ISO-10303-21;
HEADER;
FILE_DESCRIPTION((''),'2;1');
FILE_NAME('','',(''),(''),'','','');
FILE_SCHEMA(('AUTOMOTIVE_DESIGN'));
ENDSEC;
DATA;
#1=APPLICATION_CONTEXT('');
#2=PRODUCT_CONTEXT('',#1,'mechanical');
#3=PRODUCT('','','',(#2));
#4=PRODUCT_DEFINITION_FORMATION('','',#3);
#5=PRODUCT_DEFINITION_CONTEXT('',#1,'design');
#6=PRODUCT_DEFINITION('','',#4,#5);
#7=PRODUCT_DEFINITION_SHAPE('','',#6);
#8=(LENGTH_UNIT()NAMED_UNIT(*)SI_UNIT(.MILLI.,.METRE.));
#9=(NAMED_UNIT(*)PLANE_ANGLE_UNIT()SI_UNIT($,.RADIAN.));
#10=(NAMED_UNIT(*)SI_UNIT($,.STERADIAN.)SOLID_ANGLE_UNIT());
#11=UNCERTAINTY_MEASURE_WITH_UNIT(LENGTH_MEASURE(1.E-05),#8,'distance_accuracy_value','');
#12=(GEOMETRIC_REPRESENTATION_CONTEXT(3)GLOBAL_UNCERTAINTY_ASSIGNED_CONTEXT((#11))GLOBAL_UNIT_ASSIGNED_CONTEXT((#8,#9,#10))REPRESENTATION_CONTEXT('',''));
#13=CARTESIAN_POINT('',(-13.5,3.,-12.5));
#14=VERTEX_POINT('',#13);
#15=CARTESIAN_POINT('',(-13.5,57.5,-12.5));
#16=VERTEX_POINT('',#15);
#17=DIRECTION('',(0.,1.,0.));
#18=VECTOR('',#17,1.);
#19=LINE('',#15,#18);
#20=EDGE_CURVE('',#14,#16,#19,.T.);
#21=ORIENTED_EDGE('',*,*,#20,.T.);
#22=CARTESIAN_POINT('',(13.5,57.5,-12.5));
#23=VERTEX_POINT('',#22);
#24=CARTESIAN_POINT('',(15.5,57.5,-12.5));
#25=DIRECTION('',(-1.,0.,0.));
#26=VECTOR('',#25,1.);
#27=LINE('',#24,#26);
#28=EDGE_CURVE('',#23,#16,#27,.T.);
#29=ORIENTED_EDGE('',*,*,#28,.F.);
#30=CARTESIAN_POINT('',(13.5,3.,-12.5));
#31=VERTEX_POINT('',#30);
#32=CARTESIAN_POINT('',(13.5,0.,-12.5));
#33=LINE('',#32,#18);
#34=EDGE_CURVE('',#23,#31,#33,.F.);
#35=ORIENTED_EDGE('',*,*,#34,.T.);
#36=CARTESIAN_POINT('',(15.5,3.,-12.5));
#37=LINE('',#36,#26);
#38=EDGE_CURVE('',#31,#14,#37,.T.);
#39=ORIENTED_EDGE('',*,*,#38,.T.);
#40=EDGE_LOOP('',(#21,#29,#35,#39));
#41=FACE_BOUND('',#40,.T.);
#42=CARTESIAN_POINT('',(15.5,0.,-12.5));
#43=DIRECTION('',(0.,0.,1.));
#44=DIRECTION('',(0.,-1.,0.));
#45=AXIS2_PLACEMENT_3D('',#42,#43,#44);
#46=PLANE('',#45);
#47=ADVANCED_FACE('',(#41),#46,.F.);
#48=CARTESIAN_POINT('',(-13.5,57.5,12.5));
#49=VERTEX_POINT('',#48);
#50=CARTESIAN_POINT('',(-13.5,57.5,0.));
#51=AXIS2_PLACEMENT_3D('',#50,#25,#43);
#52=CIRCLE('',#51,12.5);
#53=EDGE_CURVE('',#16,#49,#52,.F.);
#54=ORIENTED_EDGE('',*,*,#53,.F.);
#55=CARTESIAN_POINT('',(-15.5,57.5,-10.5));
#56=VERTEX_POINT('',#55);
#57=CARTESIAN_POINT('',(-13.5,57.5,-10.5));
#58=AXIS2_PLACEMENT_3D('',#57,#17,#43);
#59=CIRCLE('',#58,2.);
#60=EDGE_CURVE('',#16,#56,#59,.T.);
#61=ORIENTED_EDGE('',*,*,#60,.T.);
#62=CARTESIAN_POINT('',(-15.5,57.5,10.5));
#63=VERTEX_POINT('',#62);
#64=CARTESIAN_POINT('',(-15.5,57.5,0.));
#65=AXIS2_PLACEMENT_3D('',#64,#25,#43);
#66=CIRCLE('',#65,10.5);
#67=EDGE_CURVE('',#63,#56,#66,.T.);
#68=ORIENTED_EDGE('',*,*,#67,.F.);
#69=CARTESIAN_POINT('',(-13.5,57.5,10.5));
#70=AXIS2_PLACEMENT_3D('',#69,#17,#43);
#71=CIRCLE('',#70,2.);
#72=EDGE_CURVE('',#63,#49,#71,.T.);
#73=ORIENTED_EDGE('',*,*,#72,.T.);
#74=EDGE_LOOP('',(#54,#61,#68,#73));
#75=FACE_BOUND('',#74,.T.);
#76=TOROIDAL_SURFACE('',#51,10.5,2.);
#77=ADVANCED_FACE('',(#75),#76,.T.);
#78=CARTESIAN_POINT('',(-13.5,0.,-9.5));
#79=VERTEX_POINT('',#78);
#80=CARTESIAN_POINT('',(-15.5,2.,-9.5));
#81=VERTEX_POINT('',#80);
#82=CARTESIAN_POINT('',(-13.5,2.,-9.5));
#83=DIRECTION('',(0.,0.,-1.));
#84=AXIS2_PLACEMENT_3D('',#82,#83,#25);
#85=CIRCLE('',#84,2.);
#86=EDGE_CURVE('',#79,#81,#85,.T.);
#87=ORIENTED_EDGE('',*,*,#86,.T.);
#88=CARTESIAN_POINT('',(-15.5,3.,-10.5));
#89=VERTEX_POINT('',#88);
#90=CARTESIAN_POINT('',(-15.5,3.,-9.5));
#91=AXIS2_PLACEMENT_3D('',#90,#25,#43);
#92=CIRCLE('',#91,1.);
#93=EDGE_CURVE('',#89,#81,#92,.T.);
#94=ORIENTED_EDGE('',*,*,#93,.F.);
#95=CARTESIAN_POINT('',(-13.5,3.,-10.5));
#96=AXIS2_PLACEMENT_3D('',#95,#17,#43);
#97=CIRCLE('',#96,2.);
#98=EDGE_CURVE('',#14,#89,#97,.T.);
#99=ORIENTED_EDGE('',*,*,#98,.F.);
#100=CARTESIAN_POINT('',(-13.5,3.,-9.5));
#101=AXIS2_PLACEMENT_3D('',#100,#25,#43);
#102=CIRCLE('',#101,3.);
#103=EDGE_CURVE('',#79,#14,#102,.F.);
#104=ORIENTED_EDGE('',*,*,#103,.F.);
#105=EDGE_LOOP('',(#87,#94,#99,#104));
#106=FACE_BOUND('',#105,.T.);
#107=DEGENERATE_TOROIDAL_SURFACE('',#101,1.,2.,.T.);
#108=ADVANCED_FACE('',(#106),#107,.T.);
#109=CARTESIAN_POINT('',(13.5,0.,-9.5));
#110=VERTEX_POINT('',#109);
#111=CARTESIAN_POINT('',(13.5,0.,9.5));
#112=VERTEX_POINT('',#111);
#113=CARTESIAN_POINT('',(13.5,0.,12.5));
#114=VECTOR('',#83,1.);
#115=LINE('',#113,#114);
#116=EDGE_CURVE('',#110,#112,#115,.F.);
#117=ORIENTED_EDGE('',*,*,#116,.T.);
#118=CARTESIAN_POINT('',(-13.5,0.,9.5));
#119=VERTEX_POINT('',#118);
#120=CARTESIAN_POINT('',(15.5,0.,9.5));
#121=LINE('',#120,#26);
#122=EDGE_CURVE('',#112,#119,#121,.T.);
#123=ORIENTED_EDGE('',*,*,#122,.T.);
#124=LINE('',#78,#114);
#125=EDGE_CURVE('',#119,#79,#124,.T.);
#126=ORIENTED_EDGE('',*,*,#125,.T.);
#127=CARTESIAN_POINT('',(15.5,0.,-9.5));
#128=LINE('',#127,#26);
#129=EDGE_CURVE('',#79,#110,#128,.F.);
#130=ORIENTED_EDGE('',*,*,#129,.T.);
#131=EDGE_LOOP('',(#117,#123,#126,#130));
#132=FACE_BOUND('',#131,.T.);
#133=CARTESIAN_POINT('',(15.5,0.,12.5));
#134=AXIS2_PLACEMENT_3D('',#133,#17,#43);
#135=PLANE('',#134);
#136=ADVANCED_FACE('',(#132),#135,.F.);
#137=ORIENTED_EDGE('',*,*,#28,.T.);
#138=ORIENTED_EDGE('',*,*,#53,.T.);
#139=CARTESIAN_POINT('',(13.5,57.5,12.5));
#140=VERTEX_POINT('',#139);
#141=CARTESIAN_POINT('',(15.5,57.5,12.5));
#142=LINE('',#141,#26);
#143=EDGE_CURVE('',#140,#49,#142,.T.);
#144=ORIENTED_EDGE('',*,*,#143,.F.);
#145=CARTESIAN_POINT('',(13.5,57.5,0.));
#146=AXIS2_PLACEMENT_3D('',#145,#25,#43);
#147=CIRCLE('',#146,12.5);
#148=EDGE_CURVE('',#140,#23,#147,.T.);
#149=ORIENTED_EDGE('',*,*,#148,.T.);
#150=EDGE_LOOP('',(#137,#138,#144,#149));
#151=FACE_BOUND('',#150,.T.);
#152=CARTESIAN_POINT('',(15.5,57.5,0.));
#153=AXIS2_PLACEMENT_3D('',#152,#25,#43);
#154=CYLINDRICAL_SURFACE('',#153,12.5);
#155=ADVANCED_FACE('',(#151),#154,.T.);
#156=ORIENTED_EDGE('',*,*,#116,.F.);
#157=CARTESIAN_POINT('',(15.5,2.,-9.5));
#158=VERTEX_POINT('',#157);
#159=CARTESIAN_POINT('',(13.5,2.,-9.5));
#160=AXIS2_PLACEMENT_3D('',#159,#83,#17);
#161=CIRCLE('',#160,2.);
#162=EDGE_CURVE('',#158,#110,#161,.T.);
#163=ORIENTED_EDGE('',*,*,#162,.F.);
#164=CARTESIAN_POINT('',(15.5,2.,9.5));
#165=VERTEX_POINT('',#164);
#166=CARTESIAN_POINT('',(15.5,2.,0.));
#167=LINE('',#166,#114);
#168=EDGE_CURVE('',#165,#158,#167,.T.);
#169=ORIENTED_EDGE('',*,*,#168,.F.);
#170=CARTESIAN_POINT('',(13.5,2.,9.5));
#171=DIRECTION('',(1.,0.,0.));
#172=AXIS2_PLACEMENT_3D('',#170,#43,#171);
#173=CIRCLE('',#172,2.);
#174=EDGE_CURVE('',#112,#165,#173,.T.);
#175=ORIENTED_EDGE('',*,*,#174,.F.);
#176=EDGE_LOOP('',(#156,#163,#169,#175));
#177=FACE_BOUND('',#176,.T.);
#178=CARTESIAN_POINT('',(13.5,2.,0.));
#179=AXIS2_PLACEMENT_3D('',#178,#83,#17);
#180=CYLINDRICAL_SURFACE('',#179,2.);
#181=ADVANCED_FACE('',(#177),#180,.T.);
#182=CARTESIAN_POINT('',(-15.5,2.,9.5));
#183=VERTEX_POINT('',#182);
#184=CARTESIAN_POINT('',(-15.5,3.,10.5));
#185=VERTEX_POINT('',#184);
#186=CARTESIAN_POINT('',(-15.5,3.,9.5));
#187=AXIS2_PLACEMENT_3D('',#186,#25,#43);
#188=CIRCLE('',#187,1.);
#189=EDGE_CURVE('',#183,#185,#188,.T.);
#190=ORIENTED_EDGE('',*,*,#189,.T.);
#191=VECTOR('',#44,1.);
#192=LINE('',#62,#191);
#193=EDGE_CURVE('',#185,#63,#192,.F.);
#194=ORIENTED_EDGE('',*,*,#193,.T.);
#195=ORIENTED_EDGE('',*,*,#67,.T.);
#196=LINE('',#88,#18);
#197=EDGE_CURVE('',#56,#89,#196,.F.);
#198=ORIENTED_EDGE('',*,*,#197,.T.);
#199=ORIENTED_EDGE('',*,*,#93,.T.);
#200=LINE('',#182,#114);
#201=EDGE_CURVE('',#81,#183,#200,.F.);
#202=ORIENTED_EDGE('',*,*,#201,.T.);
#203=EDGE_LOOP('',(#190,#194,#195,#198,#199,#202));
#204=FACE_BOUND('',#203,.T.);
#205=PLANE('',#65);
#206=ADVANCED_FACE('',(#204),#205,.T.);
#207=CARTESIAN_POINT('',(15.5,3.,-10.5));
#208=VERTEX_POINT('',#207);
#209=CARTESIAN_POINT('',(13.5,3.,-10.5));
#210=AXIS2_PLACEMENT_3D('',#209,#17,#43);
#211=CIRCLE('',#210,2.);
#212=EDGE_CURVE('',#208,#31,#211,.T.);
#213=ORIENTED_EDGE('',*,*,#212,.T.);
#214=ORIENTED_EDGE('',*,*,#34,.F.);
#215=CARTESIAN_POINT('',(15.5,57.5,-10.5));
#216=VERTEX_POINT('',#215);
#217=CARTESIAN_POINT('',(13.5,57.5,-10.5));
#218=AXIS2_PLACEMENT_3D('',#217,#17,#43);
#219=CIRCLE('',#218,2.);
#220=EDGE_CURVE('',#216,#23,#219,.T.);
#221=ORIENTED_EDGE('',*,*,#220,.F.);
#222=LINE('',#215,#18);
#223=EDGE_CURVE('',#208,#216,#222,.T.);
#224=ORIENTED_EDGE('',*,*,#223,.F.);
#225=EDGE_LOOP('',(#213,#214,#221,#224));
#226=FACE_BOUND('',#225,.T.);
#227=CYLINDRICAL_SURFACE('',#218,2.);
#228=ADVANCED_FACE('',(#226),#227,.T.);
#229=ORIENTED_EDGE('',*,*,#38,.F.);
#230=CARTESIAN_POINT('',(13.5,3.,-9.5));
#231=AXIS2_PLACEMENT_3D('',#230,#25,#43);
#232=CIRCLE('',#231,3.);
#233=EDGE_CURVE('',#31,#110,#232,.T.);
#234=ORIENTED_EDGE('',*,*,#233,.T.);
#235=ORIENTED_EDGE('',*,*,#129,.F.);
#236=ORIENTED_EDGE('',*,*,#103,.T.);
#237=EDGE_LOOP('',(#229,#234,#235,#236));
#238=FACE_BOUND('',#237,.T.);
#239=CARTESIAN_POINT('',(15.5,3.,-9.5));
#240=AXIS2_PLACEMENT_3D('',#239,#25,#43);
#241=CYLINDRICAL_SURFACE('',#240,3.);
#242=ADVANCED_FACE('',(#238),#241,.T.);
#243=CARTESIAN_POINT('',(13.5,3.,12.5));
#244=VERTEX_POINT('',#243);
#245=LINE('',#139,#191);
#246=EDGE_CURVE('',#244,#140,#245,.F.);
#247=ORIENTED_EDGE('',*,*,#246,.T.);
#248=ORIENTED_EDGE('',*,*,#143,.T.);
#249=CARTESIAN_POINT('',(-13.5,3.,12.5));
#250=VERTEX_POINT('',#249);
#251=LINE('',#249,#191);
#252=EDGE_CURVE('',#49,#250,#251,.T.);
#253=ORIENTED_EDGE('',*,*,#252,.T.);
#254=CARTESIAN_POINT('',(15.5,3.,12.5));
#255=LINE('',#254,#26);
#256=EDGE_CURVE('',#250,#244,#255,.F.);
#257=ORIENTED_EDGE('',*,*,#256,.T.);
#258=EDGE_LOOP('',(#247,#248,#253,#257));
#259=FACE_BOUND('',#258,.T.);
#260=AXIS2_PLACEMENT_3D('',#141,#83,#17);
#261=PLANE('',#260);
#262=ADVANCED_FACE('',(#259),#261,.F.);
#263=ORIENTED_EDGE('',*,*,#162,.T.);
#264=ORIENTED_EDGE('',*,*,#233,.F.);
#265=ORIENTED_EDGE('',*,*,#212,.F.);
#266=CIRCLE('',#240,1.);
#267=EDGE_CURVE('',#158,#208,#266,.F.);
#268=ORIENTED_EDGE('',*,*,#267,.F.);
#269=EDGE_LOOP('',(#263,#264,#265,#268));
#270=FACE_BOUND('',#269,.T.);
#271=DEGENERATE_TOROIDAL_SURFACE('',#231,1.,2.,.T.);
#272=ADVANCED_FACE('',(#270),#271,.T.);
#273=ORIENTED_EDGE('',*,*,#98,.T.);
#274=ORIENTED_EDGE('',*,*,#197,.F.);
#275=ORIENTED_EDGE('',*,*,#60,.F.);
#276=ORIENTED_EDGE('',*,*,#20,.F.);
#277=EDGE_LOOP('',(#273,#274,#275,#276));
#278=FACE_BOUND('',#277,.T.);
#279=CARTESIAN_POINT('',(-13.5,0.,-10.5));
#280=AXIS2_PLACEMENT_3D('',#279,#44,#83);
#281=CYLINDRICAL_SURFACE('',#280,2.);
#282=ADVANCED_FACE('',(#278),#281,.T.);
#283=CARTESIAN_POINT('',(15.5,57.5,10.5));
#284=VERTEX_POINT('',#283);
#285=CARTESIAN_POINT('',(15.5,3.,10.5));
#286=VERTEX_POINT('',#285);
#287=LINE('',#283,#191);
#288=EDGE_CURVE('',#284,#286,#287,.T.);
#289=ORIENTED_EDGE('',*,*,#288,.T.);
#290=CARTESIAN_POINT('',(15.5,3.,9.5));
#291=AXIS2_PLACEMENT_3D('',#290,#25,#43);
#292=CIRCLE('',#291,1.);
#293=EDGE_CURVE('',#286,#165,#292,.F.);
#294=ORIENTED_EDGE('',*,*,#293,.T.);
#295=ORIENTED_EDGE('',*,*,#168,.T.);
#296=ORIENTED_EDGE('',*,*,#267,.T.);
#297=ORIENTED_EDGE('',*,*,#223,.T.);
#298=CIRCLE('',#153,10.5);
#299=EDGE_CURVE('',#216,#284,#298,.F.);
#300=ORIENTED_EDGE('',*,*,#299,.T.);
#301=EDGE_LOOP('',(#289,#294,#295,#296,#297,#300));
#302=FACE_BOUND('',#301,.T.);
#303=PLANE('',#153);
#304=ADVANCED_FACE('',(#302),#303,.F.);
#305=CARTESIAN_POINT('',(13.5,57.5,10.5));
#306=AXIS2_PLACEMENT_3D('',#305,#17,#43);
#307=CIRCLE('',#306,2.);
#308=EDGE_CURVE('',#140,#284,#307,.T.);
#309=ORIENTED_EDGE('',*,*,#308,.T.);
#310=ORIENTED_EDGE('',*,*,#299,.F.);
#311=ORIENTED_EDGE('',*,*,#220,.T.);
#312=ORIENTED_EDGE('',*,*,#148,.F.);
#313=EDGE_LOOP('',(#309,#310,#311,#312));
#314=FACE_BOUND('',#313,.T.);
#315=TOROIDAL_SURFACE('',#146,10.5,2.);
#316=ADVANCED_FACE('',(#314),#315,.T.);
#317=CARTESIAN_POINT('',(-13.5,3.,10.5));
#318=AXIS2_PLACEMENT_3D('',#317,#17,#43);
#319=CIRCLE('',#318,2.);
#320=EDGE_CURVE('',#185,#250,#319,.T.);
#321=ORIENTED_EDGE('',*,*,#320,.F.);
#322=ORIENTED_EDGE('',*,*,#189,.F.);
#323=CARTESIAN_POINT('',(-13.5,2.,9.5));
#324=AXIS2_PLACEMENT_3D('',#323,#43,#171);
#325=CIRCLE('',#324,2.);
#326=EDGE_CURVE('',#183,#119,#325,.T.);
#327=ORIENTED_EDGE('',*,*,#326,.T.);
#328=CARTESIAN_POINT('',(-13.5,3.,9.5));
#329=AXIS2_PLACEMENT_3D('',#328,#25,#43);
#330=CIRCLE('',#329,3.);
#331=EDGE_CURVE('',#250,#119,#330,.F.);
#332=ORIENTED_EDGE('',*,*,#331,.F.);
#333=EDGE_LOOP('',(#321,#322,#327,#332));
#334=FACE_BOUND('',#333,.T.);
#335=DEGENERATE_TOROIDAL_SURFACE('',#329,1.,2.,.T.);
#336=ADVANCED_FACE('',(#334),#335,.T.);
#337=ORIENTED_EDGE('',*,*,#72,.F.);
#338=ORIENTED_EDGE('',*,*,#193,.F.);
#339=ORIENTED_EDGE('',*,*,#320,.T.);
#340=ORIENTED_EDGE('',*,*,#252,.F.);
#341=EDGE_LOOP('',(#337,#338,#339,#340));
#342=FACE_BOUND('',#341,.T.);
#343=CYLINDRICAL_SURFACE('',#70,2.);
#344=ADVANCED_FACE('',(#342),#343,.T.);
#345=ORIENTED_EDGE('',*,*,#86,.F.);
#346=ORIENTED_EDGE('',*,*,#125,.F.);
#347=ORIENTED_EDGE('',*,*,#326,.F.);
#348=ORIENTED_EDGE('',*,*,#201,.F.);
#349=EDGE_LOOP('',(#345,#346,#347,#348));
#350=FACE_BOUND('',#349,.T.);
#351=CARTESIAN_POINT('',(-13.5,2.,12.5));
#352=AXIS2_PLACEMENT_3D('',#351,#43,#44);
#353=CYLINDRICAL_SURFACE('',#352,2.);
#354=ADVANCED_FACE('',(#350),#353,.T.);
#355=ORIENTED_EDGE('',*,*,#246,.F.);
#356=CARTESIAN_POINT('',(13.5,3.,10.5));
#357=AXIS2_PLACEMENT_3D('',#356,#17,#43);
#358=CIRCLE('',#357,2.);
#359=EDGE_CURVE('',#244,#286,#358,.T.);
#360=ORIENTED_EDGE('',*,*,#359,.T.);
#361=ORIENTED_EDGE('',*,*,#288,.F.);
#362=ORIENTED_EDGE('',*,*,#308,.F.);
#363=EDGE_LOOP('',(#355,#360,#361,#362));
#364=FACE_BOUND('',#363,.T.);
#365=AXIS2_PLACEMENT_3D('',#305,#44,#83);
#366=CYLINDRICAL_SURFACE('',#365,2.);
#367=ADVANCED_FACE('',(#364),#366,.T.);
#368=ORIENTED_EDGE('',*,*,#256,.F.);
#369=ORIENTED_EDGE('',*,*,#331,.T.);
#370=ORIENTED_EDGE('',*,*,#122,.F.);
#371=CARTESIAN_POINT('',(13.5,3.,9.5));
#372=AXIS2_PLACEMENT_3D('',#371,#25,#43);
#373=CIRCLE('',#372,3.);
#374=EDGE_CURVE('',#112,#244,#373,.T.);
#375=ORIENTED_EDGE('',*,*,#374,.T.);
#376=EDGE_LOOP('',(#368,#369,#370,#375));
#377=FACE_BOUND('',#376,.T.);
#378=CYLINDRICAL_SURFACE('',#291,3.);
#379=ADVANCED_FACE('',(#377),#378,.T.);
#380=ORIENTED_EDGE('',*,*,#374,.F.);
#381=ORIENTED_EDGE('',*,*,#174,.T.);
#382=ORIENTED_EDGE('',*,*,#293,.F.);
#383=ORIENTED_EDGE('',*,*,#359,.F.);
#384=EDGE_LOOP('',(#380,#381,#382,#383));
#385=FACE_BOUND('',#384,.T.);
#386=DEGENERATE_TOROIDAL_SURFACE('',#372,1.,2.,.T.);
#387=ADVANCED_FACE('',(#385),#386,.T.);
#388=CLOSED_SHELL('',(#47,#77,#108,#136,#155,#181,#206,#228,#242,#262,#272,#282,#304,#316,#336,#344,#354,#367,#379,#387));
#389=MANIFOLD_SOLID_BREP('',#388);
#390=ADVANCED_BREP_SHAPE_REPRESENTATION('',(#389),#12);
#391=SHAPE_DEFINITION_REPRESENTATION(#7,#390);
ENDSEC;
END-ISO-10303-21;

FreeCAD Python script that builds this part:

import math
import FreeCAD as App
import Part
import Sketcher
from FreeCAD import Vector
Q = App.Units.Quantity


def edges_at(feature, points):
    """Names of the edges that pass closest to the given points."""
    edges = feature.Shape.Edges
    near = lambda p: min(range(len(edges)), key=lambda i: edges[i].distToShape(Part.Vertex(*p))[0])
    return sorted({f"Edge{near(p) + 1}" for p in points})

doc = App.newDocument("Part")
params = doc.addObject("Spreadsheet::Sheet", "Params")
for row, (alias, value) in enumerate([
    ("sketch1_radius", "12.5 mm"),
    ("sketch1_width", "57.5 mm"),
    ("pad1_length", "31 mm"),
    ("fillet_radius", "3 mm"),
    ("fillet2_radius", "2 mm"),
], start=1):
    params.set(f"A{row}", alias)
    params.set(f"B{row}", "=" + value)
    params.setAlias(f"B{row}", alias)

body = doc.addObject("PartDesign::Body", "Body")

# Sketch on YZ plane
sketch1 = doc.addObject("Sketcher::SketchObject", "Sketch")
body.addObject(sketch1)
sketch1.AttachmentSupport = (doc.YZ_Plane, [""])
sketch1.MapMode = "FlatFace"
sketch1.addGeometry([
    Part.LineSegment(Vector(58, 12, 0), Vector(0, 12, 0)),
    Part.LineSegment(Vector(0, 12, 0), Vector(0, -12, 0)),
    Part.LineSegment(Vector(0, -12, 0), Vector(58, -12, 0)),
    Part.ArcOfCircle(Part.Circle(Vector(58, 0, 0), Vector(0, 0, 1), 12), math.radians(-90), math.radians(90)),
], False)
sketch1.addConstraint([
    Sketcher.Constraint("Coincident", 0, 2, 1, 1),
    Sketcher.Constraint("Coincident", 1, 2, 2, 1),
    Sketcher.Constraint("Tangent", 2, 2, 3, 1),
    Sketcher.Constraint("Tangent", 3, 2, 0, 1),
    Sketcher.Constraint("Horizontal", 0),
    Sketcher.Constraint("Vertical", 1),
    Sketcher.Constraint("Horizontal", 2),
    Sketcher.Constraint("Symmetric", 0, 2, 1, 2, -1, 1),
    Sketcher.Constraint("Radius", 3, Q("12.5 mm")),
    Sketcher.Constraint("DistanceX", 0, 2, 0, 1, Q("57.5 mm")),
])
sketch1.setExpression("Constraints[8]", "Params.sketch1_radius")
sketch1.setExpression("Constraints[9]", "Params.sketch1_width")
pad1 = doc.addObject("PartDesign::Pad", "Pad")
body.addObject(pad1)
pad1.Profile = sketch1
pad1.setExpression("Length", "Params.pad1_length")
pad1.Midplane = True
doc.recompute()

fillet = doc.addObject("PartDesign::Fillet", "Fillet")
body.addObject(fillet)
fillet.Base = (pad1, edges_at(pad1, [(0, 0, -12.5), (0, 0, 12.5)]))
fillet.setExpression("Radius", "Params.fillet_radius")
doc.recompute()

fillet2 = doc.addObject("PartDesign::Fillet", "Fillet001")
body.addObject(fillet2)
fillet2.Base = (fillet, edges_at(fillet, [
    (-15.5, 30.25, -12.5),
    (15.5, 30.25, -12.5),
    (-15.5, 0, 0),
    (-15.5, 0.879, 11.621),
    (-15.5, 0.879, -11.621),
    (15.5, 0, 0),
    (15.5, 0.879, 11.621),
    (15.5, 0.879, -11.621),
    (15.5, 70, 0),
    (-15.5, 30.25, 12.5),
    (-15.5, 70, 0),
    (15.5, 30.25, 12.5),
]))
fillet2.setExpression("Radius", "Params.fillet2_radius")

doc.recompute()
